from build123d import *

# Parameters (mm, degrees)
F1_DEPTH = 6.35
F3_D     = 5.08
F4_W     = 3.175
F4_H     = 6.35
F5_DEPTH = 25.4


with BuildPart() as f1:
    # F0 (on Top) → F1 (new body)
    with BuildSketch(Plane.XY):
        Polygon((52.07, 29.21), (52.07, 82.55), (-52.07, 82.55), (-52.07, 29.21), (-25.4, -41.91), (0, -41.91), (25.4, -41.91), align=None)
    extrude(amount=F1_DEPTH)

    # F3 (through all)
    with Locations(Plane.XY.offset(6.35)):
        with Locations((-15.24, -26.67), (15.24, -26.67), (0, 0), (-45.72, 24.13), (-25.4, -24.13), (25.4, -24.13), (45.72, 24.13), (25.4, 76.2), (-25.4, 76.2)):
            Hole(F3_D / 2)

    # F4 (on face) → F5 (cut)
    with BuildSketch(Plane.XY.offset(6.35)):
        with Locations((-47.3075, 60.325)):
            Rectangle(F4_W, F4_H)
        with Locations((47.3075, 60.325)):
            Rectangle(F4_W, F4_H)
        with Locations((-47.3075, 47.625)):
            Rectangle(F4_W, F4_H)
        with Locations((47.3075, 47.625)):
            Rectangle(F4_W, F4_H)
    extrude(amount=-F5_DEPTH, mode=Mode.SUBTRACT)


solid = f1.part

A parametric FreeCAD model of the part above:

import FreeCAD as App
import Part
import Sketcher

V = App.Vector
Q = App.Units.Quantity

doc = App.newDocument("Part")
body = doc.addObject("PartDesign::Body", "Body")

# Sketch on XY plane
sketch1 = body.newObject("Sketcher::SketchObject", "Sketch")
sketch1.AttachmentSupport = (doc.getObject("XY_Plane"), [""])
sketch1.MapMode = "FlatFace"
sketch1.addGeometry(Part.LineSegment(V(52.07, 29.21, 0), V(52.07, 82.55, 0)), False)
sketch1.addGeometry(Part.LineSegment(V(52.07, 82.55, 0), V(-52.07, 82.55, 0)), False)
sketch1.addGeometry(Part.LineSegment(V(-52.07, 82.55, 0), V(-52.07, 29.21, 0)), False)
sketch1.addGeometry(Part.LineSegment(V(-52.07, 29.21, 0), V(-25.4, -41.91, 0)), False)
sketch1.addGeometry(Part.LineSegment(V(-25.4, -41.91, 0), V(25.4, -41.91, 0)), False)
sketch1.addGeometry(Part.LineSegment(V(25.4, -41.91, 0), V(52.07, 29.21, 0)), False)
sketch1.addConstraint(Sketcher.Constraint("Coincident", 0, 2, 1, 1))
sketch1.addConstraint(Sketcher.Constraint("Coincident", 1, 2, 2, 1))
sketch1.addConstraint(Sketcher.Constraint("Coincident", 2, 2, 3, 1))
sketch1.addConstraint(Sketcher.Constraint("Coincident", 3, 2, 4, 1))
sketch1.addConstraint(Sketcher.Constraint("Coincident", 4, 2, 5, 1))
sketch1.addConstraint(Sketcher.Constraint("Coincident", 5, 2, 0, 1))
sketch1.addConstraint(Sketcher.Constraint("Vertical", 0))
sketch1.addConstraint(Sketcher.Constraint("Horizontal", 1))
sketch1.addConstraint(Sketcher.Constraint("Vertical", 2))
sketch1.addConstraint(Sketcher.Constraint("Horizontal", 4))
sketch1.addConstraint(Sketcher.Constraint("Symmetric", 2, 2, 5, 2, -2))
sketch1.addConstraint(Sketcher.Constraint("Equal", 3, 5))
sketch1.addConstraint(Sketcher.Constraint("DistanceX", 4, 1, 4, 2, Q("2 in")))
sketch1.addConstraint(Sketcher.Constraint("DistanceX", 1, 2, 1, 1, Q("4.1 in")))
sketch1.addConstraint(Sketcher.Constraint("DistanceY", 0, 1, 0, 2, Q("2.1 in")))
sketch1.addConstraint(Sketcher.Constraint("DistanceY", 3, 2, 2, 2, Q("2.8 in")))
sketch1.addConstraint(Sketcher.Constraint("DistanceY", -1, 1, 0, 2, Q("3.25 in")))
pad1 = body.newObject("PartDesign::Pad", "Pad")
pad1.Profile = sketch1
pad1.Length = Q("0.25 in")

# Sketch on XY plane
sketch2 = body.newObject("Sketcher::SketchObject", "Sketch001")
sketch2.AttachmentSupport = (doc.getObject("XY_Plane"), [""])
sketch2.MapMode = "FlatFace"
sketch2.AttachmentOffset = App.Placement(V(0, 0, 0.25 * 25.4), App.Rotation())
sketch2.addGeometry(Part.Circle(V(-15.24, -26.67, 0), V(0, 0, 1), 2.54), False)
sketch2.addGeometry(Part.Circle(V(15.24, -26.67, 0), V(0, 0, 1), 2.54), False)
sketch2.addGeometry(Part.Circle(V(0, 0, 0), V(0, 0, 1), 2.54), False)
sketch2.addGeometry(Part.Circle(V(-45.72, 24.13, 0), V(0, 0, 1), 2.54), False)
sketch2.addGeometry(Part.Circle(V(-25.4, -24.13, 0), V(0, 0, 1), 2.54), False)
sketch2.addGeometry(Part.Circle(V(25.4, -24.13, 0), V(0, 0, 1), 2.54), False)
sketch2.addGeometry(Part.Circle(V(45.72, 24.13, 0), V(0, 0, 1), 2.54), False)
sketch2.addGeometry(Part.Circle(V(25.4, 76.2, 0), V(0, 0, 1), 2.54), False)
sketch2.addGeometry(Part.Circle(V(-25.4, 76.2, 0), V(0, 0, 1), 2.54), False)
sketch2.addConstraint(Sketcher.Constraint("Coincident", 2, 3, -1, 1))
sketch2.addConstraint(Sketcher.Constraint("Equal", 0, 1))
sketch2.addConstraint(Sketcher.Constraint("Equal", 1, 2))
sketch2.addConstraint(Sketcher.Constraint("Equal", 2, 3))
sketch2.addConstraint(Sketcher.Constraint("Equal", 3, 4))
sketch2.addConstraint(Sketcher.Constraint("Equal", 4, 5))
sketch2.addConstraint(Sketcher.Constraint("Equal", 5, 6))
sketch2.addConstraint(Sketcher.Constraint("Equal", 6, 7))
sketch2.addConstraint(Sketcher.Constraint("Equal", 7, 8))
sketch2.addConstraint(Sketcher.Constraint("Symmetric", 0, 3, 1, 3, -2))
sketch2.addConstraint(Sketcher.Constraint("Symmetric", 4, 3, 5, 3, -2))
sketch2.addConstraint(Sketcher.Constraint("Symmetric", 3, 3, 6, 3, -2))
sketch2.addConstraint(Sketcher.Constraint("Symmetric", 7, 3, 8, 3, -2))
sketch2.addConstraint(Sketcher.Constraint("Vertical", 5, 3, 7, 3))
sketch2.addConstraint(Sketcher.Constraint("Diameter", 0, Q("0.2 in")))
sketch2.addConstraint(Sketcher.Constraint("DistanceX", 4, 3, -1, 1, Q("1 in")))
sketch2.addConstraint(Sketcher.Constraint("DistanceY", -1, 1, 7, 3, Q("3 in")))
sketch2.addConstraint(Sketcher.Constraint("DistanceY", 0, 3, 3, 3, Q("2 in")))
sketch2.addConstraint(Sketcher.Constraint("DistanceX", 0, 3, -1, 1, Q("0.6 in")))
sketch2.addConstraint(Sketcher.Constraint("DistanceX", 3, 3, -1, 1, Q("1.8 in")))
sketch2.addConstraint(Sketcher.Constraint("DistanceY", 0, 3, 4, 3, Q("0.1 in")))
sketch2.addConstraint(Sketcher.Constraint("DistanceY", 0, 3, -1, 1, Q("1.05 in")))
doc.recompute()
hole = body.newObject("PartDesign::Hole", "Hole")
hole.Profile = sketch2
hole.ThreadType = "None"
hole.Diameter = Q("0.2 in")
hole.DepthType = "ThroughAll"

# Sketch on XY plane
sketch3 = body.newObject("Sketcher::SketchObject", "Sketch002")
sketch3.AttachmentSupport = (doc.getObject("XY_Plane"), [""])
sketch3.MapMode = "FlatFace"
sketch3.AttachmentOffset = App.Placement(V(0, 0, 0.25 * 25.4), App.Rotation())
sketch3.addGeometry(Part.LineSegment(V(-48.895, 63.5, 0), V(-48.895, 57.15, 0)), False)
sketch3.addGeometry(Part.LineSegment(V(-48.895, 57.15, 0), V(-45.72, 57.15, 0)), False)
sketch3.addGeometry(Part.LineSegment(V(-45.72, 57.15, 0), V(-45.72, 63.5, 0)), False)
sketch3.addGeometry(Part.LineSegment(V(-45.72, 63.5, 0), V(-48.895, 63.5, 0)), False)
sketch3.addGeometry(Part.LineSegment(V(45.72, 63.5, 0), V(45.72, 57.15, 0)), False)
sketch3.addGeometry(Part.LineSegment(V(45.72, 57.15, 0), V(48.895, 57.15, 0)), False)
sketch3.addGeometry(Part.LineSegment(V(48.895, 57.15, 0), V(48.895, 63.5, 0)), False)
sketch3.addGeometry(Part.LineSegment(V(48.895, 63.5, 0), V(45.72, 63.5, 0)), False)
sketch3.addGeometry(Part.LineSegment(V(-48.895, 50.8, 0), V(-48.895, 44.45, 0)), False)
sketch3.addGeometry(Part.LineSegment(V(-48.895, 44.45, 0), V(-45.72, 44.45, 0)), False)
sketch3.addGeometry(Part.LineSegment(V(-45.72, 44.45, 0), V(-45.72, 50.8, 0)), False)
sketch3.addGeometry(Part.LineSegment(V(-45.72, 50.8, 0), V(-48.895, 50.8, 0)), False)
sketch3.addGeometry(Part.LineSegment(V(45.72, 50.8, 0), V(45.72, 44.45, 0)), False)
sketch3.addGeometry(Part.LineSegment(V(45.72, 44.45, 0), V(48.895, 44.45, 0)), False)
sketch3.addGeometry(Part.LineSegment(V(48.895, 44.45, 0), V(48.895, 50.8, 0)), False)
sketch3.addGeometry(Part.LineSegment(V(48.895, 50.8, 0), V(45.72, 50.8, 0)), False)
sketch3.addConstraint(Sketcher.Constraint("Coincident", 0, 2, 1, 1))
sketch3.addConstraint(Sketcher.Constraint("Coincident", 1, 2, 2, 1))
sketch3.addConstraint(Sketcher.Constraint("Coincident", 2, 2, 3, 1))
sketch3.addConstraint(Sketcher.Constraint("Coincident", 3, 2, 0, 1))
sketch3.addConstraint(Sketcher.Constraint("Coincident", 4, 2, 5, 1))
sketch3.addConstraint(Sketcher.Constraint("Coincident", 5, 2, 6, 1))
sketch3.addConstraint(Sketcher.Constraint("Coincident", 6, 2, 7, 1))
sketch3.addConstraint(Sketcher.Constraint("Coincident", 7, 2, 4, 1))
sketch3.addConstraint(Sketcher.Constraint("Coincident", 8, 2, 9, 1))
sketch3.addConstraint(Sketcher.Constraint("Coincident", 9, 2, 10, 1))
sketch3.addConstraint(Sketcher.Constraint("Coincident", 10, 2, 11, 1))
sketch3.addConstraint(Sketcher.Constraint("Coincident", 11, 2, 8, 1))
sketch3.addConstraint(Sketcher.Constraint("Coincident", 12, 2, 13, 1))
sketch3.addConstraint(Sketcher.Constraint("Coincident", 13, 2, 14, 1))
sketch3.addConstraint(Sketcher.Constraint("Coincident", 14, 2, 15, 1))
sketch3.addConstraint(Sketcher.Constraint("Coincident", 15, 2, 12, 1))
sketch3.addConstraint(Sketcher.Constraint("Vertical", 0))
sketch3.addConstraint(Sketcher.Constraint("Horizontal", 1))
sketch3.addConstraint(Sketcher.Constraint("Vertical", 2))
sketch3.addConstraint(Sketcher.Constraint("Horizontal", 3))
sketch3.addConstraint(Sketcher.Constraint("Vertical", 4))
sketch3.addConstraint(Sketcher.Constraint("Horizontal", 5))
sketch3.addConstraint(Sketcher.Constraint("Vertical", 6))
sketch3.addConstraint(Sketcher.Constraint("Horizontal", 7))
sketch3.addConstraint(Sketcher.Constraint("Vertical", 8))
sketch3.addConstraint(Sketcher.Constraint("Horizontal", 9))
sketch3.addConstraint(Sketcher.Constraint("Vertical", 10))
sketch3.addConstraint(Sketcher.Constraint("Horizontal", 11))
sketch3.addConstraint(Sketcher.Constraint("Vertical", 12))
sketch3.addConstraint(Sketcher.Constraint("Horizontal", 13))
sketch3.addConstraint(Sketcher.Constraint("Vertical", 14))
sketch3.addConstraint(Sketcher.Constraint("Horizontal", 15))
sketch3.addConstraint(Sketcher.Constraint("Symmetric", 1, 2, 4, 2, -2))
sketch3.addConstraint(Sketcher.Constraint("Symmetric", 3, 2, 6, 2, -2))
sketch3.addConstraint(Sketcher.Constraint("Symmetric", 9, 2, 12, 2, -2))
sketch3.addConstraint(Sketcher.Constraint("Symmetric", 11, 2, 14, 2, -2))
sketch3.addConstraint(Sketcher.Constraint("Vertical", 3, 2, 8, 2))
sketch3.addConstraint(Sketcher.Constraint("Vertical", 2, 2, 9, 2))
sketch3.addConstraint(Sketcher.Constraint("Equal", 6, 8))
sketch3.addConstraint(Sketcher.Constraint("DistanceY", -1, 1, 10, 2, Q("2 in")))
sketch3.addConstraint(Sketcher.Constraint("DistanceY", 0, 2, 0, 1, Q("0.25 in")))
sketch3.addConstraint(Sketcher.Constraint("DistanceX", 1, 2, -1, 1, Q("1.8 in")))
sketch3.addConstraint(Sketcher.Constraint("DistanceY", -1, 1, 2, 2, Q("2.5 in")))
sketch3.addConstraint(Sketcher.Constraint("DistanceX", 1, 1, 1, 2, Q("0.125 in")))
pocket1 = body.newObject("PartDesign::Pocket", "Pocket")
pocket1.Profile = sketch3
pocket1.Length = Q("1 in")

doc.recompute()
